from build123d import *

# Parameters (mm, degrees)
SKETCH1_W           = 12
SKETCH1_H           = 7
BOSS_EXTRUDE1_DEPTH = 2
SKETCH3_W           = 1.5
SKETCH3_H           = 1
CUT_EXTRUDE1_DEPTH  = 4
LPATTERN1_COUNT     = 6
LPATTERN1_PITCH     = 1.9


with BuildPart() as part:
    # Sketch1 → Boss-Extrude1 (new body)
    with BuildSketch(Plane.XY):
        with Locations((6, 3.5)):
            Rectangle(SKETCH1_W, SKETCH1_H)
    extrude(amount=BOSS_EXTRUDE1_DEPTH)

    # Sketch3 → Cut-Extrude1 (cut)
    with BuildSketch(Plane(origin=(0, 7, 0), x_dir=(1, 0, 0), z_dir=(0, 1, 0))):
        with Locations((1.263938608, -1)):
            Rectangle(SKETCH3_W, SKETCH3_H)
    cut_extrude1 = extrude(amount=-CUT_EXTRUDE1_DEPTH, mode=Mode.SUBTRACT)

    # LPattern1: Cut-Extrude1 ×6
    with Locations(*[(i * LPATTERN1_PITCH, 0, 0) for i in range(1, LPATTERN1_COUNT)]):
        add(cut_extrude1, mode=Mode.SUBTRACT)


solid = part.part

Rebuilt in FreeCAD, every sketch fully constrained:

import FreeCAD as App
import Part
import Sketcher
from FreeCAD import Vector
Q = App.Units.Quantity

doc = App.newDocument("Part")
params = doc.addObject("Spreadsheet::Sheet", "Params")
for row, (alias, value) in enumerate([
    ("sketch1_width", "12 mm"),
    ("sketch1_height", "7 mm"),
    ("pad1_length", "2 mm"),
    ("sketch2_height", "1 mm"),
    ("sketch2_width", "1.5 mm"),
    ("pocket1_length", "4 mm"),
    ("linearpattern_pitch", "1.9 mm"),
], start=1):
    params.set(f"A{row}", alias)
    params.set(f"B{row}", "=" + value)
    params.setAlias(f"B{row}", alias)

body = doc.addObject("PartDesign::Body", "Body")

sketch1 = doc.addObject("Sketcher::SketchObject", "Sketch")
body.addObject(sketch1)
sketch1.AttachmentSupport = (doc.XY_Plane, [""])
sketch1.MapMode = "FlatFace"
sketch1.addGeometry([
    Part.LineSegment(Vector(0, 7, 0), Vector(0, 0, 0)),
    Part.LineSegment(Vector(0, 0, 0), Vector(12, 0, 0)),
    Part.LineSegment(Vector(12, 0, 0), Vector(12, 7, 0)),
    Part.LineSegment(Vector(12, 7, 0), Vector(0, 7, 0)),
], False)
sketch1.addConstraint([
    Sketcher.Constraint("Coincident", 0, 2, 1, 1),
    Sketcher.Constraint("Coincident", 1, 2, 2, 1),
    Sketcher.Constraint("Coincident", 2, 2, 3, 1),
    Sketcher.Constraint("Coincident", 3, 2, 0, 1),
    Sketcher.Constraint("Vertical", 0),
    Sketcher.Constraint("Horizontal", 1),
    Sketcher.Constraint("Vertical", 2),
    Sketcher.Constraint("Horizontal", 3),
    Sketcher.Constraint("Coincident", 0, 2, -1, 1),
    Sketcher.Constraint("DistanceX", 1, 1, 1, 2, Q("12 mm")),
    Sketcher.Constraint("DistanceY", 0, 2, 0, 1, Q("7 mm")),
])
sketch1.setExpression("Constraints[9]", "Params.sketch1_width")
sketch1.setExpression("Constraints[10]", "Params.sketch1_height")
pad1 = doc.addObject("PartDesign::Pad", "Pad")
body.addObject(pad1)
pad1.Profile = sketch1
pad1.setExpression("Length", "Params.pad1_length")

sketch2 = doc.addObject("Sketcher::SketchObject", "Sketch001")
body.addObject(sketch2)
sketch2.AttachmentSupport = (doc.XZ_Plane, [""])
sketch2.MapMode = "FlatFace"
sketch2.AttachmentOffset = App.Placement(Vector(0, 0, -7), App.Rotation())
sketch2.addGeometry([
    Part.LineSegment(Vector(0.5, 0.5, 0), Vector(0.5, 1.5, 0)),
    Part.LineSegment(Vector(0.5, 1.5, 0), Vector(2, 1.5, 0)),
    Part.LineSegment(Vector(2, 1.5, 0), Vector(2, 0.5, 0)),
    Part.LineSegment(Vector(2, 0.5, 0), Vector(0.5, 0.5, 0)),
], False)
sketch2.addConstraint([
    Sketcher.Constraint("Coincident", 0, 2, 1, 1),
    Sketcher.Constraint("Coincident", 1, 2, 2, 1),
    Sketcher.Constraint("Coincident", 2, 2, 3, 1),
    Sketcher.Constraint("Coincident", 3, 2, 0, 1),
    Sketcher.Constraint("Vertical", 0),
    Sketcher.Constraint("Horizontal", 1),
    Sketcher.Constraint("Vertical", 2),
    Sketcher.Constraint("Horizontal", 3),
    Sketcher.Constraint("DistanceY", 0, 1, 0, 2, Q("1 mm")),
    Sketcher.Constraint("DistanceX", 1, 1, 1, 2, Q("1.5 mm")),
    Sketcher.Constraint("DistanceY", -1, 1, 0, 2, Q("1.5 mm")),
    Sketcher.Constraint("DistanceX", -1, 1, 0, 2, Q("0.513939 mm")),
])
sketch2.setExpression("Constraints[8]", "Params.sketch2_height")
sketch2.setExpression("Constraints[9]", "Params.sketch2_width")
pocket1 = doc.addObject("PartDesign::Pocket", "Pocket")
body.addObject(pocket1)
pocket1.Profile = sketch2
pocket1.setExpression("Length", "Params.pocket1_length")
pocket1.Reversed = True
doc.recompute()

linearpattern = doc.addObject("PartDesign::LinearPattern", "LinearPattern")
body.addObject(linearpattern)
linearpattern.Originals = [pocket1]
linearpattern.Direction = (doc.X_Axis, [""])
linearpattern.Mode = "offset"
linearpattern.setExpression("Offset", "Params.linearpattern_pitch")
linearpattern.Occurrences = 6
body.Tip = linearpattern

doc.recompute()
